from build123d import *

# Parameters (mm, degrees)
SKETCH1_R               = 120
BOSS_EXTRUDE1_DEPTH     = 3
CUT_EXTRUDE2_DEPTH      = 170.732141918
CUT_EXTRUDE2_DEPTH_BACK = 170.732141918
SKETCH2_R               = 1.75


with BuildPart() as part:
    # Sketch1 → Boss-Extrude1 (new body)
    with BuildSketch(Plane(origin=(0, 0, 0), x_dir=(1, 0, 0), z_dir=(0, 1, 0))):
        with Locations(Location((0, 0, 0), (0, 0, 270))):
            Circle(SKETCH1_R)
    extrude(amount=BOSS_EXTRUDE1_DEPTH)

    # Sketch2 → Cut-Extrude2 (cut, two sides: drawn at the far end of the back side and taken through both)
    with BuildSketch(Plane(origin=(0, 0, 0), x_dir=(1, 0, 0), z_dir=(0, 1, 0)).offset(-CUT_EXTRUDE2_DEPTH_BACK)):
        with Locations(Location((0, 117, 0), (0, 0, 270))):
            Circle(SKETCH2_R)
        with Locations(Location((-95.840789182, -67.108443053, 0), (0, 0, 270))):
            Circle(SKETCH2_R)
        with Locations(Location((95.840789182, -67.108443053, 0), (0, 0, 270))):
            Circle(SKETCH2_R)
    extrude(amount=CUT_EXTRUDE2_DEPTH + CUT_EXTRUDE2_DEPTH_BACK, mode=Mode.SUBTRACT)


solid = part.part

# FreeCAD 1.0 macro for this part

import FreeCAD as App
import Part
import Sketcher

doc = App.newDocument("Part")
body = doc.addObject("PartDesign::Body", "Body")

sketch1 = body.newObject("Sketcher::SketchObject", "Sketch")
sketch1.AttachmentSupport = (doc.getObject("XZ_Plane"), [""])
sketch1.MapMode = "FlatFace"
sketch1.addGeometry(Part.Circle(App.Vector(0, 0, 0), App.Vector(0, 0, 1), 120), False)
sketch1.addConstraint(Sketcher.Constraint("Coincident", 0, 3, -1, 1))
sketch1.addConstraint(Sketcher.Constraint("Diameter", 0, 240.0))
pad1 = body.newObject("PartDesign::Pad", "Pad")
pad1.Profile = sketch1
pad1.Length = 3
pad1.Reversed = True

sketch2 = body.newObject("Sketcher::SketchObject", "Sketch001")
sketch2.AttachmentSupport = (doc.getObject("XZ_Plane"), [""])
sketch2.MapMode = "FlatFace"
sketch2.addGeometry(Part.Circle(App.Vector(0, -117, 0), App.Vector(0, 0, 1), 1.8), False)
sketch2.addGeometry(Part.Circle(App.Vector(-95.8, 67.1, 0), App.Vector(0, 0, 1), 1.8), False)
sketch2.addGeometry(Part.Circle(App.Vector(95.8, 67.1, 0), App.Vector(0, 0, 1), 1.8), False)
sketch2.addConstraint(Sketcher.Constraint("Equal", 0, 1))
sketch2.addConstraint(Sketcher.Constraint("Equal", 1, 2))
sketch2.addConstraint(Sketcher.Constraint("Symmetric", 1, 3, 2, 3, -2))
sketch2.addConstraint(Sketcher.Constraint("PointOnObject", 0, 3, -2))
sketch2.addConstraint(Sketcher.Constraint("Diameter", 0, 3.5))
sketch2.addConstraint(Sketcher.Constraint("DistanceY", 0, 3, -1, 1, 117.0))
sketch2.addConstraint(Sketcher.Constraint("DistanceX", 1, 3, -1, 1, 95.840789))
sketch2.addConstraint(Sketcher.Constraint("DistanceY", -1, 1, 1, 3, 67.108443))
pocket1 = body.newObject("PartDesign::Pocket", "Pocket")
pocket1.Profile = sketch2
pocket1.Type = "ThroughAll"
pocket1.Midplane = True

doc.recompute()
